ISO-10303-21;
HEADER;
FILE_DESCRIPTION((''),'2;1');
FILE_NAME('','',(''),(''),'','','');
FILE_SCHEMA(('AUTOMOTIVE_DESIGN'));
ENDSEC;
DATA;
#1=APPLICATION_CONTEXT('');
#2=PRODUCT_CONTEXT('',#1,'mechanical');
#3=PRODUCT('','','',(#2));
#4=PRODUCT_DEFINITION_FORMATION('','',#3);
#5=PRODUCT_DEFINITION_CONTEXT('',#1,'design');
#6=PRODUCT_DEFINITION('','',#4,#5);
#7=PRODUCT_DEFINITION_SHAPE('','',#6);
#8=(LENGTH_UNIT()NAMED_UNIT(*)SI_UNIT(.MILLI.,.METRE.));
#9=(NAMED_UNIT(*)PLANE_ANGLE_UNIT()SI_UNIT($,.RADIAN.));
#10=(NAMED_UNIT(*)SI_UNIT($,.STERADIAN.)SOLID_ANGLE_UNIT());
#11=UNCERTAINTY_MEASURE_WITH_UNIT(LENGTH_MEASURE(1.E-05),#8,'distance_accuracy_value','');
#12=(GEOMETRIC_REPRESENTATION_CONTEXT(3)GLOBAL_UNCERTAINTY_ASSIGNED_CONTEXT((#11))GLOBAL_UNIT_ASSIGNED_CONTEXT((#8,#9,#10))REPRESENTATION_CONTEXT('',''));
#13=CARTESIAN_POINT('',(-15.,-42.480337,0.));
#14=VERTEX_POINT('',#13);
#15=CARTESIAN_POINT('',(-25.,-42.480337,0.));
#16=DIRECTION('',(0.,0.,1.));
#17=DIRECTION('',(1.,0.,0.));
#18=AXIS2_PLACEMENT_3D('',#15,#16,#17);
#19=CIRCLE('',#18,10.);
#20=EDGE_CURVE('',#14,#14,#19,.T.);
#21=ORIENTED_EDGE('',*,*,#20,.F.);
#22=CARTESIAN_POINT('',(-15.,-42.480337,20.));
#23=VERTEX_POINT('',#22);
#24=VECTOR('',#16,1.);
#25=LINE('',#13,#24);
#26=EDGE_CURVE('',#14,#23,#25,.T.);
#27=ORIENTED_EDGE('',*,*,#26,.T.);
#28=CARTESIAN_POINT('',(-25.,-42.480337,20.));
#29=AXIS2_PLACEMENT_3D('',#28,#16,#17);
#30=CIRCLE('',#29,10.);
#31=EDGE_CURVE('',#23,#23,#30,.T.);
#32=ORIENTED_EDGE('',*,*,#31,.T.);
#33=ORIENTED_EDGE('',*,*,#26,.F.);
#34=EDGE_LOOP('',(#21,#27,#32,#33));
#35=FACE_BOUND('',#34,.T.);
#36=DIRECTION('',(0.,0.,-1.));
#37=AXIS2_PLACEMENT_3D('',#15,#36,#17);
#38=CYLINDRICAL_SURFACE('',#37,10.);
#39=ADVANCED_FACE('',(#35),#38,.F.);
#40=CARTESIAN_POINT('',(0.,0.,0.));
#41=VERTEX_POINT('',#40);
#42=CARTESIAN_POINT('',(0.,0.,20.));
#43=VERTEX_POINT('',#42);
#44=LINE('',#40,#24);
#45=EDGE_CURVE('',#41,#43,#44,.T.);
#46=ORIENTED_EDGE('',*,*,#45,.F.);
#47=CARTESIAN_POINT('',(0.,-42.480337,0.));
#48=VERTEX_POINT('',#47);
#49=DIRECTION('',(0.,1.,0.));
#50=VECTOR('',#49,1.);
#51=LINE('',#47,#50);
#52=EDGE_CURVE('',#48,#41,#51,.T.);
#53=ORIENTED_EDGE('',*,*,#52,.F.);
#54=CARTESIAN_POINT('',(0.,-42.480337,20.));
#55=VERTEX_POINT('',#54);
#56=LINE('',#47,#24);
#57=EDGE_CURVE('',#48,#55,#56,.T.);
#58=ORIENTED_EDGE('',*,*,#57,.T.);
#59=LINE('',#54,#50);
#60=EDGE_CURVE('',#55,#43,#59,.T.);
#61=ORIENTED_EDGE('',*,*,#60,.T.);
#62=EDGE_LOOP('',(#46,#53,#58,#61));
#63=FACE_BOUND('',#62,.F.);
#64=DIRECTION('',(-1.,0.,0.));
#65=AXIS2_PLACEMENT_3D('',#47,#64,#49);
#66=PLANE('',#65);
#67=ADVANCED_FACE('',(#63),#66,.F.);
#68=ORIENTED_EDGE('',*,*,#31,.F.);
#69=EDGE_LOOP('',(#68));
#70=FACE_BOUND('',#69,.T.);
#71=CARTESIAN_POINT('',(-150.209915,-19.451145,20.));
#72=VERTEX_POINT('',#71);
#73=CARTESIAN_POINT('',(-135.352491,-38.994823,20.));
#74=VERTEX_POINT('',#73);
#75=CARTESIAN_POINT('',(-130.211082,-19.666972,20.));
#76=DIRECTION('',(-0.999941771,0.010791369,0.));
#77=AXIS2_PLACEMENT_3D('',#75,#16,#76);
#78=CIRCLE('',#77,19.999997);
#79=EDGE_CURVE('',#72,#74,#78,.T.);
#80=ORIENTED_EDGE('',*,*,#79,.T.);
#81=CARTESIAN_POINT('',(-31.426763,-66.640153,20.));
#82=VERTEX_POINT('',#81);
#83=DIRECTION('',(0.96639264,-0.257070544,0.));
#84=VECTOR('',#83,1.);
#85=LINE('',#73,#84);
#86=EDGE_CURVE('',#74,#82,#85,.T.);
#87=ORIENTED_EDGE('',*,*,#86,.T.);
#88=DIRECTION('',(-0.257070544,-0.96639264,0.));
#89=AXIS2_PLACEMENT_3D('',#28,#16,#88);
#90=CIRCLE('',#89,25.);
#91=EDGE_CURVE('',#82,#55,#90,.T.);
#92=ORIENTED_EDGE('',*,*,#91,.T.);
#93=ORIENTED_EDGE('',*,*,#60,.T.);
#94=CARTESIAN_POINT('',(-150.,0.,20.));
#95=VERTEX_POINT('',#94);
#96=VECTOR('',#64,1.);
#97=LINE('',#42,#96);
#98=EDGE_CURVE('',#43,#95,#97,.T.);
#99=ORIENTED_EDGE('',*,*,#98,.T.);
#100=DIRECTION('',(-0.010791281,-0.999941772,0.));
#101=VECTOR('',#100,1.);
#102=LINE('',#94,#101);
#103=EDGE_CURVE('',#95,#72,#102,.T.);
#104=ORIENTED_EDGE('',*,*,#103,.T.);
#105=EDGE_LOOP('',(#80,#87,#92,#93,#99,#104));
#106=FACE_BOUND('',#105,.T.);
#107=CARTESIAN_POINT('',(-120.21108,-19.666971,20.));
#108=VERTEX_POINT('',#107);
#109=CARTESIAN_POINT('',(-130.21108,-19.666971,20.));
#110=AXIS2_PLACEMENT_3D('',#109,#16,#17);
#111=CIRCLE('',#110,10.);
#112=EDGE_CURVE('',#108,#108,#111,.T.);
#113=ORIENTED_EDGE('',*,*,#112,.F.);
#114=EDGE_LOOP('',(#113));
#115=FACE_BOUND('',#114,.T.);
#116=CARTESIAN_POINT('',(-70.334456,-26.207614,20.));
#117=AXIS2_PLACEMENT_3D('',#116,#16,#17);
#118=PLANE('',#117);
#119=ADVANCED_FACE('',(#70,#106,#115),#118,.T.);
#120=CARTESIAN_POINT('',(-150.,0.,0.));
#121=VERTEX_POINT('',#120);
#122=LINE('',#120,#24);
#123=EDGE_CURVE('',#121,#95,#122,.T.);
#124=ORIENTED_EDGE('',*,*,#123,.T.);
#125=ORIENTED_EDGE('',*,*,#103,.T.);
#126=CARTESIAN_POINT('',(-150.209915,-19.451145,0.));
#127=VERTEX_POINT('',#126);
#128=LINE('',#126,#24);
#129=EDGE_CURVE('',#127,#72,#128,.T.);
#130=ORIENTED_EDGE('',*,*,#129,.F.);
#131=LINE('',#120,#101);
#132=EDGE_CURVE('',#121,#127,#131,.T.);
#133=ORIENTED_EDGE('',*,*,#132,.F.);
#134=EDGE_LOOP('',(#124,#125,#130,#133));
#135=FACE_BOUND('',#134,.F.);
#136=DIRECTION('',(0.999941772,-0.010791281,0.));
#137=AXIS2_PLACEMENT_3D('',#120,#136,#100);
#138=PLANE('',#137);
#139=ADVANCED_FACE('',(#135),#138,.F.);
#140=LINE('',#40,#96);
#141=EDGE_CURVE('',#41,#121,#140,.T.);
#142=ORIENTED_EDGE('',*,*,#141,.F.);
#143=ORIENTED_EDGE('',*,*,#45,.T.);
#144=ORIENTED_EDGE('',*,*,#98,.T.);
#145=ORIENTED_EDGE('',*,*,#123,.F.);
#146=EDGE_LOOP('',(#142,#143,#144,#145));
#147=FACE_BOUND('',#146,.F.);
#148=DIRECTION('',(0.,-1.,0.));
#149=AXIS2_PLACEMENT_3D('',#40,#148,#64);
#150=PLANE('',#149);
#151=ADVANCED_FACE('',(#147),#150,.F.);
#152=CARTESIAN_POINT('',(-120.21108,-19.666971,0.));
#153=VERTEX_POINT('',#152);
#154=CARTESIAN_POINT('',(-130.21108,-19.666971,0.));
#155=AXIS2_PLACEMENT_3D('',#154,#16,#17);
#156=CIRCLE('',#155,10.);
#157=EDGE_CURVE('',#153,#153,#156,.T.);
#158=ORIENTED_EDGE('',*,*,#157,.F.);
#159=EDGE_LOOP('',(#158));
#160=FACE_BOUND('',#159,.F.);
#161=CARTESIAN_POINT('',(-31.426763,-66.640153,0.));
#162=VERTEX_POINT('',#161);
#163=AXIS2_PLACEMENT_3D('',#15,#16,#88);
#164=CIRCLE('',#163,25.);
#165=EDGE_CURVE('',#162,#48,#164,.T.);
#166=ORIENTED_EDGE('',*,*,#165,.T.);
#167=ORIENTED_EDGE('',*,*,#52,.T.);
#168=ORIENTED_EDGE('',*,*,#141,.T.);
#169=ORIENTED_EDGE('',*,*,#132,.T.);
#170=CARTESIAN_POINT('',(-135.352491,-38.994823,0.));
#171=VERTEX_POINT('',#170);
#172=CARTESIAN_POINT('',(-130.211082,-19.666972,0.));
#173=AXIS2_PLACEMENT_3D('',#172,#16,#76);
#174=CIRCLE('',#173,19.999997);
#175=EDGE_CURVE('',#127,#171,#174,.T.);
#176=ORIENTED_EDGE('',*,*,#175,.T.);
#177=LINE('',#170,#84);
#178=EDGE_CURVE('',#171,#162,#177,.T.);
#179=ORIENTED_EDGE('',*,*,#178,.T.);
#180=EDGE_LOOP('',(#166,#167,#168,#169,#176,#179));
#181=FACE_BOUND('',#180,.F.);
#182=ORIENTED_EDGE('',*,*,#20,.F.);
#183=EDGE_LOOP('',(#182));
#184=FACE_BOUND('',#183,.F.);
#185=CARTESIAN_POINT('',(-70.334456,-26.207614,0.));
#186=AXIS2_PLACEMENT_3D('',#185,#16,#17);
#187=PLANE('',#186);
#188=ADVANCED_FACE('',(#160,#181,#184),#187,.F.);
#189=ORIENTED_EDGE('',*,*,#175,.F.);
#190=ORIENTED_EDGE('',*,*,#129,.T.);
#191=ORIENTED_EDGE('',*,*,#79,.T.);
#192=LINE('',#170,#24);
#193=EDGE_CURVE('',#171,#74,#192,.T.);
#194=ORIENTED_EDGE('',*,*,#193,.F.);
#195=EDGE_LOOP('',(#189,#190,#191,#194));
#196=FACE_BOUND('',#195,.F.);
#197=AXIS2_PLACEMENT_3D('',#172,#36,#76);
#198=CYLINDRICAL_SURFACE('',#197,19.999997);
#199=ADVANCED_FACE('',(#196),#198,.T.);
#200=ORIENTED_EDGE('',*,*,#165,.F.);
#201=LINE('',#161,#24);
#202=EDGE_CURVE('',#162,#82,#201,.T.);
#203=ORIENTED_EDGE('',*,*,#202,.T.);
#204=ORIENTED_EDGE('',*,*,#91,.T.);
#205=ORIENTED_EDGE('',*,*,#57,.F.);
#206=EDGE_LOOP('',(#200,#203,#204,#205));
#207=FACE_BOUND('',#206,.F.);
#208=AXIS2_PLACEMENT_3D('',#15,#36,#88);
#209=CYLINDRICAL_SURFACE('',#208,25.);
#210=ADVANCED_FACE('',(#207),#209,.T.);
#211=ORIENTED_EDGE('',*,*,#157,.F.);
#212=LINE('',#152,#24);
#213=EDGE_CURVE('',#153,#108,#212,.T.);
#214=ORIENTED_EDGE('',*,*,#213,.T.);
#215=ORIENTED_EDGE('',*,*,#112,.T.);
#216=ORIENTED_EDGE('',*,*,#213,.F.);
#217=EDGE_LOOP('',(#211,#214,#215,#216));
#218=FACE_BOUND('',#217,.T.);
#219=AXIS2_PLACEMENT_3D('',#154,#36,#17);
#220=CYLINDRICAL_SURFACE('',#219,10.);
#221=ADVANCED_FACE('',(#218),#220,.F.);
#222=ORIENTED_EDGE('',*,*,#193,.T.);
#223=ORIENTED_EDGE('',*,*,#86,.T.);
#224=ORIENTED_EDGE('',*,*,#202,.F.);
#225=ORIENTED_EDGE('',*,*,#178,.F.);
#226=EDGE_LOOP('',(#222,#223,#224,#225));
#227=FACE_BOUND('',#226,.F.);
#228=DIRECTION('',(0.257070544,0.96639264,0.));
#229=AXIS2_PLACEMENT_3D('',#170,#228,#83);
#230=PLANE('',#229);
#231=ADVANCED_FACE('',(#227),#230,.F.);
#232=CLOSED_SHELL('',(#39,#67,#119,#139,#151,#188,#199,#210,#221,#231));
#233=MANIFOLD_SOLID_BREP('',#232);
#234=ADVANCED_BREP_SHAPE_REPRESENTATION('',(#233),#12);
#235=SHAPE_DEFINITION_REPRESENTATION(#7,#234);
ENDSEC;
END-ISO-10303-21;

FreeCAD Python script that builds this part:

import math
import FreeCAD as App
import Part
import Sketcher

V = App.Vector
Q = App.Units.Quantity

doc = App.newDocument("Part")
params = doc.addObject("Spreadsheet::Sheet", "Params")
for row, (alias, value) in enumerate([
    ("sketch1_diameter", "20 mm"),
    ("sketch1_radius", "25 mm"),
    ("sketch1_width", "150 mm"),
    ("pad1_length", "20 mm"),
], start=1):
    params.set(f"A{row}", alias)
    params.set(f"B{row}", "=" + value)
    params.setAlias(f"B{row}", alias)

body = doc.addObject("PartDesign::Body", "Body")

sketch1 = doc.addObject("Sketcher::SketchObject", "Sketch")
body.addObject(sketch1)
sketch1.AttachmentSupport = (doc.XY_Plane, [""])
sketch1.MapMode = "FlatFace"
sketch1.addGeometry([
    Part.LineSegment(V(0, -42.480337, 0), V(0, 0, 0)),
    Part.LineSegment(V(0, 0, 0), V(-150, 0, 0)),
    Part.LineSegment(V(-150, 0, 0), V(-150.209915, -19.451145, 0)),
    Part.ArcOfCircle(Part.Circle(V(-130.211082, -19.666972, 0), V(0, 0, 1), 19.999997), math.radians(179.381688), math.radians(255.103695)),
    Part.LineSegment(V(-135.352491, -38.994823, 0), V(-31.426763, -66.640153, 0)),
    Part.ArcOfCircle(Part.Circle(V(-25, -42.480337, 0), V(0, 0, 1), 25), math.radians(-104.896309), math.radians(0.000001)),
    Part.Circle(V(-25, -42.480337, 0), V(0, 0, 1), 10),
    Part.Circle(V(-130.21108, -19.666971, 0), V(0, 0, 1), 10),
], False)
sketch1.addConstraint([
    Sketcher.Constraint("Coincident", 0, 2, 1, 1),
    Sketcher.Constraint("Coincident", 1, 2, 2, 1),
    Sketcher.Constraint("Tangent", 2, 2, 3, 1),
    Sketcher.Constraint("Tangent", 3, 2, 4, 1),
    Sketcher.Constraint("Tangent", 4, 2, 5, 1),
    Sketcher.Constraint("Tangent", 5, 2, 0, 1),
    Sketcher.Constraint("Vertical", 0),
    Sketcher.Constraint("Horizontal", 1),
    Sketcher.Constraint("Coincident", 0, 2, -1, 1),
    Sketcher.Constraint("Coincident", 6, 3, 5, 3),
    Sketcher.Constraint("Coincident", 7, 3, 3, 3),
    Sketcher.Constraint("Equal", 6, 7),
    Sketcher.Constraint("Diameter", 6, Q("20 mm")),
    Sketcher.Constraint("Radius", 5, Q("25 mm")),
    Sketcher.Constraint("DistanceX", 1, 2, 1, 1, Q("150 mm")),
    Sketcher.Constraint("Radius", 3, Q("19.999997 mm")),
    Sketcher.Constraint("Distance", 4, Q("107.539859 mm")),
    Sketcher.Constraint("DistanceY", 0, 1, 0, 2, Q("42.480337 mm")),
    Sketcher.Constraint("DistanceX", 7, 3, -1, 1, Q("130.21108 mm")),
])
sketch1.setExpression("Constraints[12]", "Params.sketch1_diameter")
sketch1.setExpression("Constraints[13]", "Params.sketch1_radius")
sketch1.setExpression("Constraints[14]", "Params.sketch1_width")
pad1 = doc.addObject("PartDesign::Pad", "Pad")
body.addObject(pad1)
pad1.Profile = sketch1
pad1.setExpression("Length", "Params.pad1_length")

doc.recompute()
